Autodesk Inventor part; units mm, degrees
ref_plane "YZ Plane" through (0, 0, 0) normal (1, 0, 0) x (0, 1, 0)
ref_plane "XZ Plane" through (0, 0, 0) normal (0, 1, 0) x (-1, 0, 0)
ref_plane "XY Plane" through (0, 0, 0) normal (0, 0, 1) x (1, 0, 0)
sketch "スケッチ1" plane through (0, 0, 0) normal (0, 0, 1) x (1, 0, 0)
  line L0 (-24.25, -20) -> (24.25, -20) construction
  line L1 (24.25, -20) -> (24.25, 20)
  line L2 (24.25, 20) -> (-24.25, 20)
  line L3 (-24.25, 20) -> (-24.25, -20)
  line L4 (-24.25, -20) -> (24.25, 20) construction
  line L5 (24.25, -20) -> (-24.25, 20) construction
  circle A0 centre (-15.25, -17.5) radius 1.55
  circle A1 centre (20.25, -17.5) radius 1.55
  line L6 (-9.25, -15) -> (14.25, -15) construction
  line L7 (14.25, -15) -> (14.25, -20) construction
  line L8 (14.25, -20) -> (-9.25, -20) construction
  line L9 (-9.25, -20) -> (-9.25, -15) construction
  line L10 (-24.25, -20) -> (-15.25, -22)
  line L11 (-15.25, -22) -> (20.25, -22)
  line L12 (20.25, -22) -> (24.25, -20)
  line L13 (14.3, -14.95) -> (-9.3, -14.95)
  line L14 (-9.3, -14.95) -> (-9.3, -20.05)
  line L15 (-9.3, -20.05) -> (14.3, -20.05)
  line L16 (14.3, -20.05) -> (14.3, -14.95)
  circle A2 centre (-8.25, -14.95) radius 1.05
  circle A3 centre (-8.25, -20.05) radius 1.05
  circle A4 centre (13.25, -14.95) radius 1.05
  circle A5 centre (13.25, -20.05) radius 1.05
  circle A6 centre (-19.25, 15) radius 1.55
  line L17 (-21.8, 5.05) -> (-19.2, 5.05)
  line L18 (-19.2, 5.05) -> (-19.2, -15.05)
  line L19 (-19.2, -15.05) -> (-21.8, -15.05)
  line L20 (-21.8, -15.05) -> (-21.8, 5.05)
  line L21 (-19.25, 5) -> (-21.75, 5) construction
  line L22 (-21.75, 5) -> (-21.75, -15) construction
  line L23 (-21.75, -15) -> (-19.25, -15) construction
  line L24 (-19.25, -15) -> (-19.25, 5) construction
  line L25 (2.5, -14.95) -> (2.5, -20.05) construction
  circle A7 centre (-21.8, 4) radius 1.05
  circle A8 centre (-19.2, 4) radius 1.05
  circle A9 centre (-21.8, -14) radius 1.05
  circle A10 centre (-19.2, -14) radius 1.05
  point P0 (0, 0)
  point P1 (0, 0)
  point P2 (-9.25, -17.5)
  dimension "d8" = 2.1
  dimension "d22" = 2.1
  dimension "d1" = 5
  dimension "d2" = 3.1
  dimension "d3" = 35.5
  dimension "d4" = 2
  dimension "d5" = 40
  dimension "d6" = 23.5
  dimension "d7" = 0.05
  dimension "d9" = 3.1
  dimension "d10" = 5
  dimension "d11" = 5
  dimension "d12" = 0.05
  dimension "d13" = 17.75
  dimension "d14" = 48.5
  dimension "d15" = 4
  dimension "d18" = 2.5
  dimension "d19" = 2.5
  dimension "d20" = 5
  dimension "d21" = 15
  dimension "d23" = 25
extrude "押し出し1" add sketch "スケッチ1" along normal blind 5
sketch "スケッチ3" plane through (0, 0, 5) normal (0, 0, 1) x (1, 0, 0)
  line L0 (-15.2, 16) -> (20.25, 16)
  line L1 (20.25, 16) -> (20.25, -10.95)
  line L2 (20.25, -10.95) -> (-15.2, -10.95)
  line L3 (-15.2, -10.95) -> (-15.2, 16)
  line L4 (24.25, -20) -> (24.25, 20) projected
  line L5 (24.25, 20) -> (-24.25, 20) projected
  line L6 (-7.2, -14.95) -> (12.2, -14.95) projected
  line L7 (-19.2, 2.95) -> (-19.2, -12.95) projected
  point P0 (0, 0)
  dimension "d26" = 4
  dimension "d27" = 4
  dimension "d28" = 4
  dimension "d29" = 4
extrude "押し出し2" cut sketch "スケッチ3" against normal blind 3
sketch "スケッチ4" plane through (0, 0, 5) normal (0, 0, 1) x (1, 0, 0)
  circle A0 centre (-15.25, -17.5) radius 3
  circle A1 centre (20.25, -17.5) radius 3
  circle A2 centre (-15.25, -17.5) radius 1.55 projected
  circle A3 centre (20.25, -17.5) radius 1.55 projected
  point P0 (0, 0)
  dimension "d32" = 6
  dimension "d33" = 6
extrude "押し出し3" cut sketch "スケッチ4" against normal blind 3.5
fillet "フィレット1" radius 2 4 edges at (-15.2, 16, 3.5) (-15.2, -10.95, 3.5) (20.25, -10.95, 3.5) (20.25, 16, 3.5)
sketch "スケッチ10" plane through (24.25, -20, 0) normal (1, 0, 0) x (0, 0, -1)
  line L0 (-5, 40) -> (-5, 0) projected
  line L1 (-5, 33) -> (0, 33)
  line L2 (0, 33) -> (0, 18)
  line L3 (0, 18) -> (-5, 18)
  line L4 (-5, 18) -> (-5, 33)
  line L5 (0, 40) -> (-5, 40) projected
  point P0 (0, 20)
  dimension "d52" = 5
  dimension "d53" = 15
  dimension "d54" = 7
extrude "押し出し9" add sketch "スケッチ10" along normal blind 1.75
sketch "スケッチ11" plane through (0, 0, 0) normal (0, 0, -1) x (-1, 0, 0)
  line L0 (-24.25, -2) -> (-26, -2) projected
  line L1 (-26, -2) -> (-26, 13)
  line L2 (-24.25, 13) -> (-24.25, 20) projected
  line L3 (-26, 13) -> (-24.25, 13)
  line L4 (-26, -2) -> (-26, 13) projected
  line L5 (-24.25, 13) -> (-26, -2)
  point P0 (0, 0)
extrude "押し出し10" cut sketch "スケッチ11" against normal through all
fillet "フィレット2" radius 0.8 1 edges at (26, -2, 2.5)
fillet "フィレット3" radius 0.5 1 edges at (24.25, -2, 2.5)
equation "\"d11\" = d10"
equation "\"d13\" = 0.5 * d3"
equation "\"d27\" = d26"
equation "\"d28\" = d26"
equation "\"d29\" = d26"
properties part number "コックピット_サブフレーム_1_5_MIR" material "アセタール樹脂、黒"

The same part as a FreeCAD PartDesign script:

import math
import FreeCAD as App
import Part
import Sketcher
from FreeCAD import Vector


def edges_at(feature, points):
    """Names of the edges that pass closest to the given points."""
    edges = feature.Shape.Edges
    near = lambda p: min(range(len(edges)), key=lambda i: edges[i].distToShape(Part.Vertex(*p))[0])
    return sorted({f"Edge{near(p) + 1}" for p in points})

doc = App.newDocument("Part")
params = doc.addObject("Spreadsheet::Sheet", "Params")
for row, (alias, value) in enumerate([
    ("sketch1_diameter", "3.1 mm"),
    ("sketch1_height", "40 mm"),
    ("sketch1_radius", "1.05 mm"),
    ("sketch1_width", "48.5 mm"),
    ("sketch1_width2", "35.5 mm"),
    ("pad1_length", "5 mm"),
    ("sketch2_width", "35.45 mm"),
    ("sketch2_height", "26.95 mm"),
    ("pocket1_length", "3 mm"),
    ("sketch3_diameter", "6 mm"),
    ("sketch3_diameter2", "3.1 mm"),
    ("pocket2_length", "3.5 mm"),
    ("fillet_radius", "2 mm"),
    ("sketch4_width", "15 mm"),
    ("sketch4_height", "5 mm"),
    ("pad2_length", "1.75 mm"),
    ("sketch5_height", "15 mm"),
    ("sketch5_width", "1.75 mm"),
    ("fillet2_radius", "0.8 mm"),
    ("fillet3_radius", "0.5 mm"),
], start=1):
    params.set(f"A{row}", alias)
    params.set(f"B{row}", "=" + value)
    params.setAlias(f"B{row}", alias)

body = doc.addObject("PartDesign::Body", "Body")

# Sketch on XY plane
sketch1 = body.newObject("Sketcher::SketchObject", "Sketch")
sketch1.AttachmentSupport = (doc.getObject("XY_Plane"), [""])
sketch1.MapMode = "FlatFace"
sketch1.addGeometry(Part.LineSegment(Vector(20.2, -22, 0), Vector(24.2, -20, 0)), False)
sketch1.addGeometry(Part.LineSegment(Vector(24.2, -20, 0), Vector(24.2, 20, 0)), False)
sketch1.addGeometry(Part.LineSegment(Vector(24.2, 20, 0), Vector(-24.2, 20, 0)), False)
sketch1.addGeometry(Part.LineSegment(Vector(-24.2, 20, 0), Vector(-24.2, -20, 0)), False)
sketch1.addGeometry(Part.LineSegment(Vector(-24.2, -20, 0), Vector(-15.2, -22, 0)), False)
sketch1.addGeometry(Part.LineSegment(Vector(-15.2, -22, 0), Vector(20.2, -22, 0)), False)
sketch1.addGeometry(Part.Circle(Vector(-15.2, -17.5, 0), Vector(0, 0, 1), 1.6), False)
sketch1.addGeometry(Part.ArcOfCircle(Part.Circle(Vector(-21.8, 4, 0), Vector(0, 0, 1), 1.1), math.radians(90), math.radians(270)), False)
sketch1.addGeometry(Part.LineSegment(Vector(-21.8, 5, 0), Vector(-19.2, 5, 0)), False)
sketch1.addGeometry(Part.ArcOfCircle(Part.Circle(Vector(-19.2, 4, 0), Vector(0, 0, 1), 1.1), math.radians(-90), math.radians(90)), False)
sketch1.addGeometry(Part.LineSegment(Vector(-19.2, 3, 0), Vector(-19.2, -12.9, 0)), False)
sketch1.addGeometry(Part.ArcOfCircle(Part.Circle(Vector(-19.2, -14, 0), Vector(0, 0, 1), 1.1), math.radians(-90), math.radians(90)), False)
sketch1.addGeometry(Part.LineSegment(Vector(-19.2, -15.1, 0), Vector(-21.8, -15.1, 0)), False)
sketch1.addGeometry(Part.ArcOfCircle(Part.Circle(Vector(-21.8, -14, 0), Vector(0, 0, 1), 1.1), math.radians(90), math.radians(270)), False)
sketch1.addGeometry(Part.LineSegment(Vector(-21.8, -12.9, 0), Vector(-21.8, 3, 0)), False)
sketch1.addGeometry(Part.ArcOfCircle(Part.Circle(Vector(-8.2, -14.9, 0), Vector(0, 0, 1), 1.1), math.radians(0), math.radians(180)), False)
sketch1.addGeometry(Part.LineSegment(Vector(-7.2, -14.9, 0), Vector(12.2, -14.9, 0)), False)
sketch1.addGeometry(Part.ArcOfCircle(Part.Circle(Vector(13.2, -14.9, 0), Vector(0, 0, 1), 1.1), math.radians(0), math.radians(180)), False)
sketch1.addGeometry(Part.LineSegment(Vector(14.3, -14.9, 0), Vector(14.3, -20.1, 0)), False)
sketch1.addGeometry(Part.ArcOfCircle(Part.Circle(Vector(13.2, -20.1, 0), Vector(0, 0, 1), 1.1), math.radians(180), math.radians(360)), False)
sketch1.addGeometry(Part.LineSegment(Vector(12.2, -20.1, 0), Vector(-7.2, -20.1, 0)), False)
sketch1.addGeometry(Part.ArcOfCircle(Part.Circle(Vector(-8.2, -20.1, 0), Vector(0, 0, 1), 1.1), math.radians(180), math.radians(360)), False)
sketch1.addGeometry(Part.LineSegment(Vector(-9.3, -20.1, 0), Vector(-9.3, -14.9, 0)), False)
sketch1.addGeometry(Part.Circle(Vector(20.2, -17.5, 0), Vector(0, 0, 1), 1.6), False)
sketch1.addGeometry(Part.Circle(Vector(-19.2, 15, 0), Vector(0, 0, 1), 1.6), False)
sketch1.addConstraint(Sketcher.Constraint("Coincident", 0, 2, 1, 1))
sketch1.addConstraint(Sketcher.Constraint("Coincident", 1, 2, 2, 1))
sketch1.addConstraint(Sketcher.Constraint("Coincident", 2, 2, 3, 1))
sketch1.addConstraint(Sketcher.Constraint("Coincident", 3, 2, 4, 1))
sketch1.addConstraint(Sketcher.Constraint("Coincident", 4, 2, 5, 1))
sketch1.addConstraint(Sketcher.Constraint("Coincident", 5, 2, 0, 1))
sketch1.addConstraint(Sketcher.Constraint("Tangent", 7, 1, 8, 1))
sketch1.addConstraint(Sketcher.Constraint("Tangent", 8, 2, 9, 2))
sketch1.addConstraint(Sketcher.Constraint("Coincident", 9, 1, 10, 1))
sketch1.addConstraint(Sketcher.Constraint("Coincident", 10, 2, 11, 2))
sketch1.addConstraint(Sketcher.Constraint("Tangent", 11, 1, 12, 1))
sketch1.addConstraint(Sketcher.Constraint("Tangent", 12, 2, 13, 2))
sketch1.addConstraint(Sketcher.Constraint("Coincident", 13, 1, 14, 1))
sketch1.addConstraint(Sketcher.Constraint("Coincident", 14, 2, 7, 2))
sketch1.addConstraint(Sketcher.Constraint("Coincident", 15, 1, 16, 1))
sketch1.addConstraint(Sketcher.Constraint("Coincident", 16, 2, 17, 2))
sketch1.addConstraint(Sketcher.Constraint("Tangent", 17, 1, 18, 1))
sketch1.addConstraint(Sketcher.Constraint("Tangent", 18, 2, 19, 2))
sketch1.addConstraint(Sketcher.Constraint("Coincident", 19, 1, 20, 1))
sketch1.addConstraint(Sketcher.Constraint("Coincident", 20, 2, 21, 2))
sketch1.addConstraint(Sketcher.Constraint("Tangent", 21, 1, 22, 1))
sketch1.addConstraint(Sketcher.Constraint("Tangent", 22, 2, 15, 2))
sketch1.addConstraint(Sketcher.Constraint("Vertical", 1))
sketch1.addConstraint(Sketcher.Constraint("Horizontal", 2))
sketch1.addConstraint(Sketcher.Constraint("Vertical", 3))
sketch1.addConstraint(Sketcher.Constraint("Horizontal", 5))
sketch1.addConstraint(Sketcher.Constraint("Horizontal", 8))
sketch1.addConstraint(Sketcher.Constraint("Vertical", 10))
sketch1.addConstraint(Sketcher.Constraint("Horizontal", 12))
sketch1.addConstraint(Sketcher.Constraint("Vertical", 14))
sketch1.addConstraint(Sketcher.Constraint("Horizontal", 16))
sketch1.addConstraint(Sketcher.Constraint("Vertical", 18))
sketch1.addConstraint(Sketcher.Constraint("Horizontal", 20))
sketch1.addConstraint(Sketcher.Constraint("Vertical", 22))
sketch1.addConstraint(Sketcher.Constraint("Equal", 7, 9))
sketch1.addConstraint(Sketcher.Constraint("Equal", 9, 11))
sketch1.addConstraint(Sketcher.Constraint("Equal", 11, 13))
sketch1.addConstraint(Sketcher.Constraint("Equal", 13, 15))
sketch1.addConstraint(Sketcher.Constraint("Equal", 15, 17))
sketch1.addConstraint(Sketcher.Constraint("Equal", 17, 19))
sketch1.addConstraint(Sketcher.Constraint("Equal", 19, 21))
sketch1.addConstraint(Sketcher.Constraint("Equal", 6, 23))
sketch1.addConstraint(Sketcher.Constraint("Equal", 23, 24))
sketch1.addConstraint(Sketcher.Constraint("Symmetric", 0, 2, 2, 2, -1, 1))
sketch1.addConstraint(Sketcher.Constraint("Horizontal", 15, 3, 17, 3))
sketch1.addConstraint(Sketcher.Constraint("Horizontal", 19, 3, 21, 3))
sketch1.addConstraint(Sketcher.Constraint("Horizontal", 6, 3, 23, 3))
sketch1.addConstraint(Sketcher.Constraint("Horizontal", 0, 2, 3, 2))
sketch1.addConstraint(Sketcher.Constraint("Horizontal", 17, 3, 15, 1))
sketch1.addConstraint(Sketcher.Constraint("Horizontal", 18, 2, 19, 1))
sketch1.addConstraint(Sketcher.Constraint("Vertical", 9, 3, 11, 3))
sketch1.addConstraint(Sketcher.Constraint("Vertical", 7, 3, 13, 3))
sketch1.addConstraint(Sketcher.Constraint("Vertical", 6, 3, 4, 2))
sketch1.addConstraint(Sketcher.Constraint("Vertical", 23, 3, 5, 2))
sketch1.addConstraint(Sketcher.Constraint("Vertical", 8, 2, 9, 1))
sketch1.addConstraint(Sketcher.Constraint("Vertical", 12, 2, 13, 1))
sketch1.addConstraint(Sketcher.Constraint("Diameter", 6, 3.1))
sketch1.addConstraint(Sketcher.Constraint("DistanceY", 1, 1, 1, 2, 40.0))
sketch1.addConstraint(Sketcher.Constraint("Radius", 7, 1.05))
sketch1.addConstraint(Sketcher.Constraint("DistanceX", 2, 2, 2, 1, 48.5))
sketch1.addConstraint(Sketcher.Constraint("DistanceX", 5, 1, 5, 2, 35.5))
sketch1.addConstraint(Sketcher.Constraint("DistanceY", -1, 1, 7, 3, 4.0))
sketch1.addConstraint(Sketcher.Constraint("DistanceY", -1, 1, 24, 3, 15.0))
sketch1.addConstraint(Sketcher.Constraint("DistanceX", 23, 3, 0, 2, 4.0))
sketch1.addConstraint(Sketcher.Constraint("DistanceX", 2, 2, 24, 3, 5.0))
sketch1.addConstraint(Sketcher.Constraint("DistanceY", 4, 2, 3, 2, 2.0))
sketch1.addConstraint(Sketcher.Constraint("DistanceY", 0, 2, 23, 3, 2.5))
sketch1.addConstraint(Sketcher.Constraint("DistanceX", 24, 3, 9, 3, 0.05))
sketch1.addConstraint(Sketcher.Constraint("DistanceY", 19, 3, 0, 2, 0.05))
sketch1.addConstraint(Sketcher.Constraint("DistanceX", 8, 1, 8, 2, 2.6))
sketch1.addConstraint(Sketcher.Constraint("DistanceX", 16, 1, 16, 2, 19.4))
sketch1.addConstraint(Sketcher.Constraint("DistanceY", 10, 2, 10, 1, 15.9))
sketch1.addConstraint(Sketcher.Constraint("DistanceY", 18, 2, 18, 1, 5.1))
sketch1.addConstraint(Sketcher.Constraint("DistanceX", 6, 3, 15, 3, 7.0))
sketch1.setExpression("Constraints[56]", "Params.sketch1_diameter")
sketch1.setExpression("Constraints[57]", "Params.sketch1_height")
sketch1.setExpression("Constraints[58]", "Params.sketch1_radius")
sketch1.setExpression("Constraints[59]", "Params.sketch1_width")
sketch1.setExpression("Constraints[60]", "Params.sketch1_width2")
pad1 = body.newObject("PartDesign::Pad", "Pad")
pad1.Profile = sketch1
pad1.setExpression("Length", "Params.pad1_length")

# Sketch on XY plane
sketch2 = body.newObject("Sketcher::SketchObject", "Sketch001")
sketch2.AttachmentSupport = (doc.getObject("XY_Plane"), [""])
sketch2.MapMode = "FlatFace"
sketch2.AttachmentOffset = App.Placement(Vector(0, 0, 5), App.Rotation())
sketch2.addGeometry(Part.LineSegment(Vector(20, 16, 0), Vector(-15, 16, 0)), False)
sketch2.addGeometry(Part.LineSegment(Vector(-15, 16, 0), Vector(-15, -11, 0)), False)
sketch2.addGeometry(Part.LineSegment(Vector(-15, -11, 0), Vector(20, -11, 0)), False)
sketch2.addGeometry(Part.LineSegment(Vector(20, -11, 0), Vector(20, 16, 0)), False)
sketch2.addConstraint(Sketcher.Constraint("Coincident", 0, 2, 1, 1))
sketch2.addConstraint(Sketcher.Constraint("Coincident", 1, 2, 2, 1))
sketch2.addConstraint(Sketcher.Constraint("Coincident", 2, 2, 3, 1))
sketch2.addConstraint(Sketcher.Constraint("Coincident", 3, 2, 0, 1))
sketch2.addConstraint(Sketcher.Constraint("Horizontal", 0))
sketch2.addConstraint(Sketcher.Constraint("Vertical", 1))
sketch2.addConstraint(Sketcher.Constraint("Horizontal", 2))
sketch2.addConstraint(Sketcher.Constraint("Vertical", 3))
sketch2.addConstraint(Sketcher.Constraint("DistanceY", -1, 1, 0, 2, 16.0))
sketch2.addConstraint(Sketcher.Constraint("DistanceX", 0, 2, 0, 1, 35.45))
sketch2.addConstraint(Sketcher.Constraint("DistanceY", 1, 2, 1, 1, 26.95))
sketch2.addConstraint(Sketcher.Constraint("DistanceX", 0, 2, -1, 1, 15.2))
sketch2.setExpression("Constraints[9]", "Params.sketch2_width")
sketch2.setExpression("Constraints[10]", "Params.sketch2_height")
pocket1 = body.newObject("PartDesign::Pocket", "Pocket")
pocket1.Profile = sketch2
pocket1.setExpression("Length", "Params.pocket1_length")

# Sketch on XY plane
sketch3 = body.newObject("Sketcher::SketchObject", "Sketch002")
sketch3.AttachmentSupport = (doc.getObject("XY_Plane"), [""])
sketch3.MapMode = "FlatFace"
sketch3.AttachmentOffset = App.Placement(Vector(0, 0, 5), App.Rotation())
sketch3.addGeometry(Part.Circle(Vector(-15.2, -17.5, 0), Vector(0, 0, 1), 3), False)
sketch3.addGeometry(Part.Circle(Vector(-15.2, -17.5, 0), Vector(0, 0, 1), 1.6), False)
sketch3.addGeometry(Part.Circle(Vector(20.2, -17.5, 0), Vector(0, 0, 1), 3), False)
sketch3.addGeometry(Part.Circle(Vector(20.2, -17.5, 0), Vector(0, 0, 1), 1.6), False)
sketch3.addConstraint(Sketcher.Constraint("Coincident", 1, 3, 0, 3))
sketch3.addConstraint(Sketcher.Constraint("Coincident", 3, 3, 2, 3))
sketch3.addConstraint(Sketcher.Constraint("Equal", 0, 2))
sketch3.addConstraint(Sketcher.Constraint("Equal", 1, 3))
sketch3.addConstraint(Sketcher.Constraint("Horizontal", 1, 3, 2, 3))
sketch3.addConstraint(Sketcher.Constraint("Diameter", 0, 6.0))
sketch3.addConstraint(Sketcher.Constraint("Diameter", 1, 3.1))
sketch3.addConstraint(Sketcher.Constraint("DistanceY", 0, 3, -1, 1, 17.5))
sketch3.addConstraint(Sketcher.Constraint("DistanceX", 0, 3, 2, 3, 35.5))
sketch3.addConstraint(Sketcher.Constraint("DistanceX", 0, 3, -1, 1, 15.25))
sketch3.setExpression("Constraints[5]", "Params.sketch3_diameter")
sketch3.setExpression("Constraints[6]", "Params.sketch3_diameter2")
pocket2 = body.newObject("PartDesign::Pocket", "Pocket001")
pocket2.Profile = sketch3
pocket2.setExpression("Length", "Params.pocket2_length")
doc.recompute()

fillet = body.newObject("PartDesign::Fillet", "Fillet")
fillet.Base = (pocket2, edges_at(pocket2, [
    (-15.2, 16, 3.5),
    (-15.2, -10.95, 3.5),
    (20.25, -10.95, 3.5),
    (20.25, 16, 3.5),
]))
fillet.setExpression("Radius", "Params.fillet_radius")

# Sketch on YZ plane
sketch4 = body.newObject("Sketcher::SketchObject", "Sketch003")
sketch4.AttachmentSupport = (doc.getObject("YZ_Plane"), [""])
sketch4.MapMode = "FlatFace"
sketch4.AttachmentOffset = App.Placement(Vector(0, 0, 24.25), App.Rotation())
sketch4.addGeometry(Part.LineSegment(Vector(13, 0, 0), Vector(13, 5, 0)), False)
sketch4.addGeometry(Part.LineSegment(Vector(13, 5, 0), Vector(-2, 5, 0)), False)
sketch4.addGeometry(Part.LineSegment(Vector(-2, 5, 0), Vector(-2, 0, 0)), False)
sketch4.addGeometry(Part.LineSegment(Vector(-2, 0, 0), Vector(13, 0, 0)), False)
sketch4.addConstraint(Sketcher.Constraint("Coincident", 0, 2, 1, 1))
sketch4.addConstraint(Sketcher.Constraint("Coincident", 1, 2, 2, 1))
sketch4.addConstraint(Sketcher.Constraint("Coincident", 2, 2, 3, 1))
sketch4.addConstraint(Sketcher.Constraint("Coincident", 3, 2, 0, 1))
sketch4.addConstraint(Sketcher.Constraint("Vertical", 0))
sketch4.addConstraint(Sketcher.Constraint("Horizontal", 1))
sketch4.addConstraint(Sketcher.Constraint("Vertical", 2))
sketch4.addConstraint(Sketcher.Constraint("Horizontal", 3))
sketch4.addConstraint(Sketcher.Constraint("PointOnObject", 2, 2, -1))
sketch4.addConstraint(Sketcher.Constraint("DistanceX", 1, 2, 1, 1, 15.0))
sketch4.addConstraint(Sketcher.Constraint("DistanceY", 0, 1, 0, 2, 5.0))
sketch4.addConstraint(Sketcher.Constraint("DistanceX", -1, 1, 0, 2, 13.0))
sketch4.setExpression("Constraints[9]", "Params.sketch4_width")
sketch4.setExpression("Constraints[10]", "Params.sketch4_height")
pad2 = body.newObject("PartDesign::Pad", "Pad001")
pad2.Profile = sketch4
pad2.setExpression("Length", "Params.pad2_length")

# Sketch on XY plane
sketch5 = body.newObject("Sketcher::SketchObject", "Sketch004")
sketch5.AttachmentSupport = (doc.getObject("XY_Plane"), [""])
sketch5.MapMode = "FlatFace"
sketch5.addGeometry(Part.LineSegment(Vector(26, 13, 0), Vector(26, -2, 0)), False)
sketch5.addGeometry(Part.LineSegment(Vector(26, -2, 0), Vector(24.2, 13, 0)), False)
sketch5.addGeometry(Part.LineSegment(Vector(24.2, 13, 0), Vector(26, 13, 0)), False)
sketch5.addConstraint(Sketcher.Constraint("Coincident", 0, 2, 1, 1))
sketch5.addConstraint(Sketcher.Constraint("Coincident", 1, 2, 2, 1))
sketch5.addConstraint(Sketcher.Constraint("Coincident", 2, 2, 0, 1))
sketch5.addConstraint(Sketcher.Constraint("Vertical", 0))
sketch5.addConstraint(Sketcher.Constraint("Horizontal", 2))
sketch5.addConstraint(Sketcher.Constraint("DistanceY", 0, 2, 0, 1, 15.0))
sketch5.addConstraint(Sketcher.Constraint("DistanceX", -1, 1, 0, 2, 26.0))
sketch5.addConstraint(Sketcher.Constraint("DistanceY", 0, 2, -1, 1, 2.0))
sketch5.addConstraint(Sketcher.Constraint("DistanceX", 2, 1, 2, 2, 1.75))
sketch5.setExpression("Constraints[5]", "Params.sketch5_height")
sketch5.setExpression("Constraints[8]", "Params.sketch5_width")
pocket3 = body.newObject("PartDesign::Pocket", "Pocket002")
pocket3.Profile = sketch5
pocket3.Type = "ThroughAll"
pocket3.Reversed = True
doc.recompute()

fillet2 = body.newObject("PartDesign::Fillet", "Fillet001")
fillet2.Base = (pocket3, edges_at(pocket3, [(26, -2, 2.5)]))
fillet2.setExpression("Radius", "Params.fillet2_radius")
doc.recompute()

fillet3 = body.newObject("PartDesign::Fillet", "Fillet002")
fillet3.Base = (fillet2, edges_at(fillet2, [(24.25, -2, 2.5)]))
fillet3.setExpression("Radius", "Params.fillet3_radius")

doc.recompute()
